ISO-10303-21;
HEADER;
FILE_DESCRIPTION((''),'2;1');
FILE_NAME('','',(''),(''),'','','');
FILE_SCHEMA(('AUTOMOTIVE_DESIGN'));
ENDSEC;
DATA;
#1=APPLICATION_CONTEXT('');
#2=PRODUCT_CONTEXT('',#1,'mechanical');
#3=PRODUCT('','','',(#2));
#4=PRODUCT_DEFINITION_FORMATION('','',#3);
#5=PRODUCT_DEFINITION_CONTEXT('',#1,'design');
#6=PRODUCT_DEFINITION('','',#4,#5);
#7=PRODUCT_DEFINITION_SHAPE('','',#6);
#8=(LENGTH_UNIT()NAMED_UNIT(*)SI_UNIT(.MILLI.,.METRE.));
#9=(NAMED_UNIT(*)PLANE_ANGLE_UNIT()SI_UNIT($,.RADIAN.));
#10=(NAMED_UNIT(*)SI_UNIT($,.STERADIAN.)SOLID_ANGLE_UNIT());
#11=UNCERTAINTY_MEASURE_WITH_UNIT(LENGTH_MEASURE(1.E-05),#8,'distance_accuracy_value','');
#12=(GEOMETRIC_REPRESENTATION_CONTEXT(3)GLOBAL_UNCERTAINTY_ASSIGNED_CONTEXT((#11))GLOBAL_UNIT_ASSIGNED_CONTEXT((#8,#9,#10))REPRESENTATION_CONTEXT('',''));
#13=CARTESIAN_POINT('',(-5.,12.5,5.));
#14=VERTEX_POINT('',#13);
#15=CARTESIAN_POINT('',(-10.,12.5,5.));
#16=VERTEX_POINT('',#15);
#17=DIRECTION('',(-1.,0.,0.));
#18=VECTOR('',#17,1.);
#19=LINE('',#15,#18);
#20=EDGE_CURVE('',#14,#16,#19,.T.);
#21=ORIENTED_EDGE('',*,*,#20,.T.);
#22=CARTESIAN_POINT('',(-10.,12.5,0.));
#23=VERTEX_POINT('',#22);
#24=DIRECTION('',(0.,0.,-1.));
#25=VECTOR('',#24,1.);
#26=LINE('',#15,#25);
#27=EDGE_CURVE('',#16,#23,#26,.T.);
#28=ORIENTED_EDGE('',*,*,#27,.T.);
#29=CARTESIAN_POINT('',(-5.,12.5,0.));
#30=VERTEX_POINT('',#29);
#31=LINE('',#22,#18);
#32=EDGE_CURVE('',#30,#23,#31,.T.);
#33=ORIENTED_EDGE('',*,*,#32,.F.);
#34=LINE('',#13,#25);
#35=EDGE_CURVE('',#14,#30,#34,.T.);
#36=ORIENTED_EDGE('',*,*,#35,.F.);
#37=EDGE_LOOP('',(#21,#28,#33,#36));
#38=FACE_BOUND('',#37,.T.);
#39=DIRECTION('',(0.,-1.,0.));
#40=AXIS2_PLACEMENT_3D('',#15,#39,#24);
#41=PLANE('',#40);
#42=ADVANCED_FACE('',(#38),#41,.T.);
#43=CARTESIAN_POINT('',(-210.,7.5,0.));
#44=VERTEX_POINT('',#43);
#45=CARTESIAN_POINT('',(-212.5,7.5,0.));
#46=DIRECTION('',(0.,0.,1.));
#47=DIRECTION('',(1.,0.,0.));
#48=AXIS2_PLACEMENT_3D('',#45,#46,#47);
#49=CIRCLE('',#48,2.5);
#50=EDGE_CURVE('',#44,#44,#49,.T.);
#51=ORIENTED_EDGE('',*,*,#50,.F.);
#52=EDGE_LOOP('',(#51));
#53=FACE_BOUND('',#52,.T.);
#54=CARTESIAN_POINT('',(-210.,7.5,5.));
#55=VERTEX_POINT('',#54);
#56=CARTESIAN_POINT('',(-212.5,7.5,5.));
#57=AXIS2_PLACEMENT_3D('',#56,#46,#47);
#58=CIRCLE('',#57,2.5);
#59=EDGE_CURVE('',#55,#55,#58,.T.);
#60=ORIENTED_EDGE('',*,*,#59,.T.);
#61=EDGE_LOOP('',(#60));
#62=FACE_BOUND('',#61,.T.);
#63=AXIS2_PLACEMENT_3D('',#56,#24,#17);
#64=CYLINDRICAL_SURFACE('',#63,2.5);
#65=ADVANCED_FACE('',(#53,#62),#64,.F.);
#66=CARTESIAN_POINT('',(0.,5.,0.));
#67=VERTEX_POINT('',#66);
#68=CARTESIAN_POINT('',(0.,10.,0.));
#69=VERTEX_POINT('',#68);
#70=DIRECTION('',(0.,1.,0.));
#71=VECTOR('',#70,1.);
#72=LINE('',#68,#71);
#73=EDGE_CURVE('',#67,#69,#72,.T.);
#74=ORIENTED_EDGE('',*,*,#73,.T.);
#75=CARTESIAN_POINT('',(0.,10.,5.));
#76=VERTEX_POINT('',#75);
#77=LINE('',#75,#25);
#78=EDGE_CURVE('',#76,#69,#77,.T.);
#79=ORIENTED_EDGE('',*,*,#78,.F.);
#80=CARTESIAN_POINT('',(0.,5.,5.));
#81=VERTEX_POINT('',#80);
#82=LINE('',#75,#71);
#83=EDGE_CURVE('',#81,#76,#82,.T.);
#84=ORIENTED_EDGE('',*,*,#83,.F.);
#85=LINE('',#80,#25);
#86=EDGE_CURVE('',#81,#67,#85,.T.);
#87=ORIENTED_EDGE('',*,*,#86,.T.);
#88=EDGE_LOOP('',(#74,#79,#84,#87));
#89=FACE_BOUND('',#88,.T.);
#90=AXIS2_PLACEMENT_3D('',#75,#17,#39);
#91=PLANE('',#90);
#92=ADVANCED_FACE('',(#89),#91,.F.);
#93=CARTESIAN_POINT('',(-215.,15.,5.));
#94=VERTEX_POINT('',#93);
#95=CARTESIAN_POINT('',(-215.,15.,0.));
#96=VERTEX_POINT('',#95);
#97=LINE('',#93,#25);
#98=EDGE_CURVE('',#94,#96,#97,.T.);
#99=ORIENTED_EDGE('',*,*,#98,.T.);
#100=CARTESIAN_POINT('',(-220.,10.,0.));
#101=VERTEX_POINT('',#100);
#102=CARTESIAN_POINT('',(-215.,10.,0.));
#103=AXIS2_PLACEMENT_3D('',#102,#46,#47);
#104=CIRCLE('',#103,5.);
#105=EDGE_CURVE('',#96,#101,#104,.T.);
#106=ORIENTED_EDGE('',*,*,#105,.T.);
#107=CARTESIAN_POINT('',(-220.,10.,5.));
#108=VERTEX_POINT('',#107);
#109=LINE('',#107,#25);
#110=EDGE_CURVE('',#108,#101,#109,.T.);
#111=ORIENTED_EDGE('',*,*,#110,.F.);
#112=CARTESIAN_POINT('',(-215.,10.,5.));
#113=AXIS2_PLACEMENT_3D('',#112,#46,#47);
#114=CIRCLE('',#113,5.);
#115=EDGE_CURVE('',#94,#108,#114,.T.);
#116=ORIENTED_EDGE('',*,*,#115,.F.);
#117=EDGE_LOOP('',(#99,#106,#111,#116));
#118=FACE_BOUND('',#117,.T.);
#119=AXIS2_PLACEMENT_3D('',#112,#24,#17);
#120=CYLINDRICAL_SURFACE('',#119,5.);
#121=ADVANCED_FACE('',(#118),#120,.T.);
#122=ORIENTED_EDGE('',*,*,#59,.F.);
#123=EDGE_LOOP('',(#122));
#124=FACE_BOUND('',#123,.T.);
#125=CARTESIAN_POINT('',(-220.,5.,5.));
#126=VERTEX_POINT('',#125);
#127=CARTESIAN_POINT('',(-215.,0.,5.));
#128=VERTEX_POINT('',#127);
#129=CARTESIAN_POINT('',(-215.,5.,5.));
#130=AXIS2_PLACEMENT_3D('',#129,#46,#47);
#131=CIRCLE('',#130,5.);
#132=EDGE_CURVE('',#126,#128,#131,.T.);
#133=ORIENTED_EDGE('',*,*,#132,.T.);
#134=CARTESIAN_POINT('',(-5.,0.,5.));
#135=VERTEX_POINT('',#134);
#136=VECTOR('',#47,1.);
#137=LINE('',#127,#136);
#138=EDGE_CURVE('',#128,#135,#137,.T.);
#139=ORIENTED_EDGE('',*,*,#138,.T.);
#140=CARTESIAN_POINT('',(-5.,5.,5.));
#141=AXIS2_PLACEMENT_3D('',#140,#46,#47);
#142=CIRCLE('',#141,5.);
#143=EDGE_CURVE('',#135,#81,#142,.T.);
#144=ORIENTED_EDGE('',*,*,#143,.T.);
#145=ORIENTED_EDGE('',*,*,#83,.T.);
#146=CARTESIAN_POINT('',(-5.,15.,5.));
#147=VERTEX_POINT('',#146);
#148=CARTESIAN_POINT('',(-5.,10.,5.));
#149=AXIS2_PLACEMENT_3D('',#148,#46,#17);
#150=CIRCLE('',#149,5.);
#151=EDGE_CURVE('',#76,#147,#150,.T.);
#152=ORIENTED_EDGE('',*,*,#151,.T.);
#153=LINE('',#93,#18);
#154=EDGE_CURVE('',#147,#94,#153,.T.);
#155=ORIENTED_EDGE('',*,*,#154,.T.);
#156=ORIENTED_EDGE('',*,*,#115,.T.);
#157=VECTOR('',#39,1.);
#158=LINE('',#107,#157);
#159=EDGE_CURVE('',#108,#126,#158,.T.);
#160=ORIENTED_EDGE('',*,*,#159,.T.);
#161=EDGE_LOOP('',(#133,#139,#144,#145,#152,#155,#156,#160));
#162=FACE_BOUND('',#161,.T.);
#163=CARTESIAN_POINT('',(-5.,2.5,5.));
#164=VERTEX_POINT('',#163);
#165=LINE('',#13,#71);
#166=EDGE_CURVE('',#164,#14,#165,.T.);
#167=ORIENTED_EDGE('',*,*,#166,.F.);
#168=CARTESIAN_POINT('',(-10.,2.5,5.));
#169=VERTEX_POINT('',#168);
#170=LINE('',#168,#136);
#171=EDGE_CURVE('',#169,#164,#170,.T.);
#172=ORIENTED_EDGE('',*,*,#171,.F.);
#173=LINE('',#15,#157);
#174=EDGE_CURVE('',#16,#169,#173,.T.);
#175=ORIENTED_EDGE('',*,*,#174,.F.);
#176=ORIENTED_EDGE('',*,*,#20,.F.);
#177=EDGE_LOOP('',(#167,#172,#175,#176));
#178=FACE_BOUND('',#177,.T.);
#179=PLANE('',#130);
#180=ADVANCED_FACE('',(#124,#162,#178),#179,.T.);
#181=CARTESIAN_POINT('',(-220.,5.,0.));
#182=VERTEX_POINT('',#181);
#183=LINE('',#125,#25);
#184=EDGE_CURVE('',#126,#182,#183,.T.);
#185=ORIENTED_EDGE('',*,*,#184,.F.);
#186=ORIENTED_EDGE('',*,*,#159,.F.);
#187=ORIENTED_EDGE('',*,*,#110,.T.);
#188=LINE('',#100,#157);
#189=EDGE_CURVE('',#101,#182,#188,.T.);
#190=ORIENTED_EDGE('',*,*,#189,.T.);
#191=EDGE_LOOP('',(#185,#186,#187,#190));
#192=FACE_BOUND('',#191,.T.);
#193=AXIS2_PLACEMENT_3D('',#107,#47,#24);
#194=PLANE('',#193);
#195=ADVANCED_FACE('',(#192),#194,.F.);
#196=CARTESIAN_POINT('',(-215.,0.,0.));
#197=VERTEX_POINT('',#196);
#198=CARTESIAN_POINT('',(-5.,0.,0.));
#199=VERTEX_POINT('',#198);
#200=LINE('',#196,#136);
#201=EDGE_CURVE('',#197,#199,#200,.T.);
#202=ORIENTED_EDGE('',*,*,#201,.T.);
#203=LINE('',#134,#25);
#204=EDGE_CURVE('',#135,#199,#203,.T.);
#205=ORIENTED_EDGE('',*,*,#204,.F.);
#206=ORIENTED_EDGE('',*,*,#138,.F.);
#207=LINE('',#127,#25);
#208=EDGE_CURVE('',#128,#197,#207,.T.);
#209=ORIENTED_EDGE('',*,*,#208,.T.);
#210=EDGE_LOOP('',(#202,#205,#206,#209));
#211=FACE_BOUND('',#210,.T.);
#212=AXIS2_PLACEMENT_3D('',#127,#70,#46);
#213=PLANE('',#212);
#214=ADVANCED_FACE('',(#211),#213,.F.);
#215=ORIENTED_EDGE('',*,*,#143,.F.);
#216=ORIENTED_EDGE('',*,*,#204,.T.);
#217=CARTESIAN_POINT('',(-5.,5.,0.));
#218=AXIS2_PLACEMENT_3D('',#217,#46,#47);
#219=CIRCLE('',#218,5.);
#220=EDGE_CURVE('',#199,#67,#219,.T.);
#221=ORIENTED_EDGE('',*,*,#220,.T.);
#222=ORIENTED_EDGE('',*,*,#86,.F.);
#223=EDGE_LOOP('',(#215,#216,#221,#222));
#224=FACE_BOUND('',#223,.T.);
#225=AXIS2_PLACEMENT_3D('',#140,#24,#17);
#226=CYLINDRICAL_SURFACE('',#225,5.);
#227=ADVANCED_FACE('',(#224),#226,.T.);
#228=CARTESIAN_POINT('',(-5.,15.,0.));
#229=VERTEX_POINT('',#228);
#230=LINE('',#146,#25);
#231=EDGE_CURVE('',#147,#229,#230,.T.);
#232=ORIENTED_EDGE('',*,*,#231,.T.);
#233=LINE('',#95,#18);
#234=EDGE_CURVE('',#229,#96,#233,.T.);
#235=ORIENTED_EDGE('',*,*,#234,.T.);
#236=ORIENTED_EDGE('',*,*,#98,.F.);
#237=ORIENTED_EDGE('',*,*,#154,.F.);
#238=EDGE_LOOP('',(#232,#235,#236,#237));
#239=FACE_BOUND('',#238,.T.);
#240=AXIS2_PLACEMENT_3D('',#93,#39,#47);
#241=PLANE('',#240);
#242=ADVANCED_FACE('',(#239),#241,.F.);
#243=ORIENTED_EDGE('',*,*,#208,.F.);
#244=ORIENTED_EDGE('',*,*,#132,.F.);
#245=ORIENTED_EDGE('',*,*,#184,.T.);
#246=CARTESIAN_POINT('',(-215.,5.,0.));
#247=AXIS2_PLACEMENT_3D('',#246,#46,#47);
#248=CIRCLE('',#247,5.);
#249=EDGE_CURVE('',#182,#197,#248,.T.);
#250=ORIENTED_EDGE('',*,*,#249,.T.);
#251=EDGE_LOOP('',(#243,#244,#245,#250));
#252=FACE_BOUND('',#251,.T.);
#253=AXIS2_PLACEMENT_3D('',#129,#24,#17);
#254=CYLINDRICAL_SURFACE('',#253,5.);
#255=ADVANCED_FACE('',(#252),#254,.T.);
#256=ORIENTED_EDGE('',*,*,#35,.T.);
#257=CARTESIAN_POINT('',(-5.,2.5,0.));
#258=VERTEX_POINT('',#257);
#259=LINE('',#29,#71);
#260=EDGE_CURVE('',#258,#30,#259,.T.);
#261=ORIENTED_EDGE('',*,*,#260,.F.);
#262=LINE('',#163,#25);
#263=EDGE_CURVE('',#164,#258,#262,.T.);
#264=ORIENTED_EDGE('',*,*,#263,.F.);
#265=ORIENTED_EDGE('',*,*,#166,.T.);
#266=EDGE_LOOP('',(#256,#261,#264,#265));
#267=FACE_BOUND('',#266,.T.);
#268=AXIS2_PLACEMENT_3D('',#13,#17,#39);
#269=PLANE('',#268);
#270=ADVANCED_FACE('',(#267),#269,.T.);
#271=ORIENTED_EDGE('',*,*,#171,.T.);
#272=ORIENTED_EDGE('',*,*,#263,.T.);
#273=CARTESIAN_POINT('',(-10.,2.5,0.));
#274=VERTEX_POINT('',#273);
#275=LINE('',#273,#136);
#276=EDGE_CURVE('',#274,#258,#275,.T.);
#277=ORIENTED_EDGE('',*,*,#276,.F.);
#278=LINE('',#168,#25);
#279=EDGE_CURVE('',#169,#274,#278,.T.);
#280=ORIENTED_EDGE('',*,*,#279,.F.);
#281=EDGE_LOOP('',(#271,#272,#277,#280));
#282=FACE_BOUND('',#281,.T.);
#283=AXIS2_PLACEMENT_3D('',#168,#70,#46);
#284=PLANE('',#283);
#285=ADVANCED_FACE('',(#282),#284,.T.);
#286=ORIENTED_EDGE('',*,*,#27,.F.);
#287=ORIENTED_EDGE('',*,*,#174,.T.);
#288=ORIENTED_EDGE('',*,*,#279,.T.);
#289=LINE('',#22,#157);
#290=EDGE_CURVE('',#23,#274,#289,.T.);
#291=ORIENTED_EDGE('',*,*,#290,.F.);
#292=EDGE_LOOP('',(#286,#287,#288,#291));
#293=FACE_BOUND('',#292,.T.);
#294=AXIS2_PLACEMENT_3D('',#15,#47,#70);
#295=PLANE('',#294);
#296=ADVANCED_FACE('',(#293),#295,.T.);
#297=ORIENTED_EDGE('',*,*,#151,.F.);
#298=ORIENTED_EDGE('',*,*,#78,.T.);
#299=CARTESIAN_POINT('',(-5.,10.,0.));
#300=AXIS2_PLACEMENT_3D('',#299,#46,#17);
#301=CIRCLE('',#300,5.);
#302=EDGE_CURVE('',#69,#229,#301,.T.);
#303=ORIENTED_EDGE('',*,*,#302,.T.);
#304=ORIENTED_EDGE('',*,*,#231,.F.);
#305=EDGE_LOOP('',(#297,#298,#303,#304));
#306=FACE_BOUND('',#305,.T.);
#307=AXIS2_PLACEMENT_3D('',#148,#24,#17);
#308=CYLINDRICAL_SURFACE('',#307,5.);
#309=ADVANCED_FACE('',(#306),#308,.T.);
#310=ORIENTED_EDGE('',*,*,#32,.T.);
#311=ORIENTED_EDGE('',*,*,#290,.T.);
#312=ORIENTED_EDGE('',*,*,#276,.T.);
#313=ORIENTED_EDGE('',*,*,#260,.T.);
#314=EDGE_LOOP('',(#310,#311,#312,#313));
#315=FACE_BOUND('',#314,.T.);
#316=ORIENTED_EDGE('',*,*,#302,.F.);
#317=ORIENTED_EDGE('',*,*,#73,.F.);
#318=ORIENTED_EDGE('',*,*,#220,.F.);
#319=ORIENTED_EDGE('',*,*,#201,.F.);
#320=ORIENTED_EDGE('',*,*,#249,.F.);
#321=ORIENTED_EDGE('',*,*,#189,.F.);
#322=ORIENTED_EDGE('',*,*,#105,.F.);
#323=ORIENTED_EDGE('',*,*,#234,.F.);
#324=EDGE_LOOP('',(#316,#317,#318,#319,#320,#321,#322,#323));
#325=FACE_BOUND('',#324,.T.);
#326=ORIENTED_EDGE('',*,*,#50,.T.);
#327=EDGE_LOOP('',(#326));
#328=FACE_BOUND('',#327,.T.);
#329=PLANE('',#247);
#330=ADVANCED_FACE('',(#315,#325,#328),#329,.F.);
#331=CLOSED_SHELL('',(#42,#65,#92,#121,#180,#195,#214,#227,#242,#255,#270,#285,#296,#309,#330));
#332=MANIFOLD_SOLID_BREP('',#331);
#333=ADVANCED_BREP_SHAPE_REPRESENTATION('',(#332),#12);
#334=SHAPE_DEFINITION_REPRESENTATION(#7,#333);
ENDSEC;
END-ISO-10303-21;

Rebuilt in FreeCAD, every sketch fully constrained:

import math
import FreeCAD as App
import Part
import Sketcher
Q = App.Units.Quantity


def add_polygon(sketch, points):
    """Adds a closed chain of lines whose ends are joined by coincident constraints."""
    first, n = sketch.GeometryCount, len(points)
    for a, b in zip(points, points[1:] + points[:1]):
        sketch.addGeometry(Part.LineSegment(App.Vector(*a, 0), App.Vector(*b, 0)), False)
    for i in range(n):
        sketch.addConstraint(Sketcher.Constraint("Coincident", first + i, 2, first + (i + 1) % n, 1))

doc = App.newDocument("Part")
body = doc.addObject("PartDesign::Body", "Body")

# Sketch on XY plane
sketch1 = body.newObject("Sketcher::SketchObject", "Sketch")
sketch1.AttachmentSupport = (doc.getObject("XY_Plane"), [""])
sketch1.MapMode = "FlatFace"
sketch1.addGeometry(Part.LineSegment(App.Vector(-5, 15, 0), App.Vector(-215, 15, 0)), False)  # 0
sketch1.addGeometry(Part.ArcOfCircle(Part.Circle(App.Vector(-215, 10, 0), App.Vector(0, 0, 1), 5), math.radians(90), math.radians(180)), False)  # 1
sketch1.addGeometry(Part.LineSegment(App.Vector(-220, 10, 0), App.Vector(-220, 5, 0)), False)  # 2
sketch1.addGeometry(Part.ArcOfCircle(Part.Circle(App.Vector(-215, 5, 0), App.Vector(0, 0, 1), 5), math.radians(180), math.radians(270)), False)  # 3
sketch1.addGeometry(Part.LineSegment(App.Vector(-215, 0, 0), App.Vector(-5, 0, 0)), False)  # 4
sketch1.addGeometry(Part.ArcOfCircle(Part.Circle(App.Vector(-5, 5, 0), App.Vector(0, 0, 1), 5), math.radians(-90), math.radians(0)), False)  # 5
sketch1.addGeometry(Part.LineSegment(App.Vector(0, 5, 0), App.Vector(0, 10, 0)), False)  # 6
sketch1.addGeometry(Part.ArcOfCircle(Part.Circle(App.Vector(-5, 10, 0), App.Vector(0, 0, 1), 5), math.radians(0), math.radians(90)), False)  # 7
add_polygon(sketch1, [(-10, 2.5), (-10, 12.5), (-5, 12.5), (-5, 2.5)])  # lines 8-11
sketch1.addGeometry(Part.Circle(App.Vector(-212.5, 7.5, 0), App.Vector(0, 0, 1), 2.5), False)  # 12
sketch1.addConstraint([
    Sketcher.Constraint("Tangent", 0, 2, 1, 1),
    Sketcher.Constraint("Tangent", 1, 2, 2, 1),
    Sketcher.Constraint("Tangent", 2, 2, 3, 1),
    Sketcher.Constraint("Tangent", 3, 2, 4, 1),
    Sketcher.Constraint("Tangent", 4, 2, 5, 1),
    Sketcher.Constraint("Tangent", 5, 2, 6, 1),
    Sketcher.Constraint("Tangent", 6, 2, 7, 1),
    Sketcher.Constraint("Tangent", 7, 2, 0, 1),
    Sketcher.Constraint("Horizontal", 0),
    Sketcher.Constraint("Vertical", 2),
    Sketcher.Constraint("Horizontal", 4),
    Sketcher.Constraint("Vertical", 6),
    Sketcher.Constraint("Vertical", 8),
    Sketcher.Constraint("Horizontal", 9),
    Sketcher.Constraint("Vertical", 10),
    Sketcher.Constraint("Horizontal", 11),
    Sketcher.Constraint("Equal", 1, 3),
    Sketcher.Constraint("Equal", 3, 5),
    Sketcher.Constraint("Equal", 5, 7),
    Sketcher.Constraint("PointOnObject", 3, 2, -1),
    Sketcher.Constraint("PointOnObject", 5, 2, -2),
    Sketcher.Constraint("Vertical", 7, 2, 9, 2),
    Sketcher.Constraint("Equal", 11, 2),
    Sketcher.Constraint("Diameter", 12, Q("5 mm")),
    Sketcher.Constraint("Radius", 1, Q("5 mm")),
    Sketcher.Constraint("DistanceX", 0, 2, 0, 1, Q("210 mm")),
    Sketcher.Constraint("DistanceX", 9, 1, 9, 2, Q("5 mm")),
    Sketcher.Constraint("DistanceY", 8, 1, 8, 2, Q("10 mm")),
    Sketcher.Constraint("DistanceX", 12, 3, -1, 1, Q("212.5 mm")),
    Sketcher.Constraint("DistanceY", -1, 1, 12, 3, Q("7.5 mm")),
    Sketcher.Constraint("DistanceY", -1, 1, 8, 2, Q("12.5 mm")),
])
pad1 = body.newObject("PartDesign::Pad", "Pad")
pad1.Profile = sketch1
pad1.Length = 5

doc.recompute()
